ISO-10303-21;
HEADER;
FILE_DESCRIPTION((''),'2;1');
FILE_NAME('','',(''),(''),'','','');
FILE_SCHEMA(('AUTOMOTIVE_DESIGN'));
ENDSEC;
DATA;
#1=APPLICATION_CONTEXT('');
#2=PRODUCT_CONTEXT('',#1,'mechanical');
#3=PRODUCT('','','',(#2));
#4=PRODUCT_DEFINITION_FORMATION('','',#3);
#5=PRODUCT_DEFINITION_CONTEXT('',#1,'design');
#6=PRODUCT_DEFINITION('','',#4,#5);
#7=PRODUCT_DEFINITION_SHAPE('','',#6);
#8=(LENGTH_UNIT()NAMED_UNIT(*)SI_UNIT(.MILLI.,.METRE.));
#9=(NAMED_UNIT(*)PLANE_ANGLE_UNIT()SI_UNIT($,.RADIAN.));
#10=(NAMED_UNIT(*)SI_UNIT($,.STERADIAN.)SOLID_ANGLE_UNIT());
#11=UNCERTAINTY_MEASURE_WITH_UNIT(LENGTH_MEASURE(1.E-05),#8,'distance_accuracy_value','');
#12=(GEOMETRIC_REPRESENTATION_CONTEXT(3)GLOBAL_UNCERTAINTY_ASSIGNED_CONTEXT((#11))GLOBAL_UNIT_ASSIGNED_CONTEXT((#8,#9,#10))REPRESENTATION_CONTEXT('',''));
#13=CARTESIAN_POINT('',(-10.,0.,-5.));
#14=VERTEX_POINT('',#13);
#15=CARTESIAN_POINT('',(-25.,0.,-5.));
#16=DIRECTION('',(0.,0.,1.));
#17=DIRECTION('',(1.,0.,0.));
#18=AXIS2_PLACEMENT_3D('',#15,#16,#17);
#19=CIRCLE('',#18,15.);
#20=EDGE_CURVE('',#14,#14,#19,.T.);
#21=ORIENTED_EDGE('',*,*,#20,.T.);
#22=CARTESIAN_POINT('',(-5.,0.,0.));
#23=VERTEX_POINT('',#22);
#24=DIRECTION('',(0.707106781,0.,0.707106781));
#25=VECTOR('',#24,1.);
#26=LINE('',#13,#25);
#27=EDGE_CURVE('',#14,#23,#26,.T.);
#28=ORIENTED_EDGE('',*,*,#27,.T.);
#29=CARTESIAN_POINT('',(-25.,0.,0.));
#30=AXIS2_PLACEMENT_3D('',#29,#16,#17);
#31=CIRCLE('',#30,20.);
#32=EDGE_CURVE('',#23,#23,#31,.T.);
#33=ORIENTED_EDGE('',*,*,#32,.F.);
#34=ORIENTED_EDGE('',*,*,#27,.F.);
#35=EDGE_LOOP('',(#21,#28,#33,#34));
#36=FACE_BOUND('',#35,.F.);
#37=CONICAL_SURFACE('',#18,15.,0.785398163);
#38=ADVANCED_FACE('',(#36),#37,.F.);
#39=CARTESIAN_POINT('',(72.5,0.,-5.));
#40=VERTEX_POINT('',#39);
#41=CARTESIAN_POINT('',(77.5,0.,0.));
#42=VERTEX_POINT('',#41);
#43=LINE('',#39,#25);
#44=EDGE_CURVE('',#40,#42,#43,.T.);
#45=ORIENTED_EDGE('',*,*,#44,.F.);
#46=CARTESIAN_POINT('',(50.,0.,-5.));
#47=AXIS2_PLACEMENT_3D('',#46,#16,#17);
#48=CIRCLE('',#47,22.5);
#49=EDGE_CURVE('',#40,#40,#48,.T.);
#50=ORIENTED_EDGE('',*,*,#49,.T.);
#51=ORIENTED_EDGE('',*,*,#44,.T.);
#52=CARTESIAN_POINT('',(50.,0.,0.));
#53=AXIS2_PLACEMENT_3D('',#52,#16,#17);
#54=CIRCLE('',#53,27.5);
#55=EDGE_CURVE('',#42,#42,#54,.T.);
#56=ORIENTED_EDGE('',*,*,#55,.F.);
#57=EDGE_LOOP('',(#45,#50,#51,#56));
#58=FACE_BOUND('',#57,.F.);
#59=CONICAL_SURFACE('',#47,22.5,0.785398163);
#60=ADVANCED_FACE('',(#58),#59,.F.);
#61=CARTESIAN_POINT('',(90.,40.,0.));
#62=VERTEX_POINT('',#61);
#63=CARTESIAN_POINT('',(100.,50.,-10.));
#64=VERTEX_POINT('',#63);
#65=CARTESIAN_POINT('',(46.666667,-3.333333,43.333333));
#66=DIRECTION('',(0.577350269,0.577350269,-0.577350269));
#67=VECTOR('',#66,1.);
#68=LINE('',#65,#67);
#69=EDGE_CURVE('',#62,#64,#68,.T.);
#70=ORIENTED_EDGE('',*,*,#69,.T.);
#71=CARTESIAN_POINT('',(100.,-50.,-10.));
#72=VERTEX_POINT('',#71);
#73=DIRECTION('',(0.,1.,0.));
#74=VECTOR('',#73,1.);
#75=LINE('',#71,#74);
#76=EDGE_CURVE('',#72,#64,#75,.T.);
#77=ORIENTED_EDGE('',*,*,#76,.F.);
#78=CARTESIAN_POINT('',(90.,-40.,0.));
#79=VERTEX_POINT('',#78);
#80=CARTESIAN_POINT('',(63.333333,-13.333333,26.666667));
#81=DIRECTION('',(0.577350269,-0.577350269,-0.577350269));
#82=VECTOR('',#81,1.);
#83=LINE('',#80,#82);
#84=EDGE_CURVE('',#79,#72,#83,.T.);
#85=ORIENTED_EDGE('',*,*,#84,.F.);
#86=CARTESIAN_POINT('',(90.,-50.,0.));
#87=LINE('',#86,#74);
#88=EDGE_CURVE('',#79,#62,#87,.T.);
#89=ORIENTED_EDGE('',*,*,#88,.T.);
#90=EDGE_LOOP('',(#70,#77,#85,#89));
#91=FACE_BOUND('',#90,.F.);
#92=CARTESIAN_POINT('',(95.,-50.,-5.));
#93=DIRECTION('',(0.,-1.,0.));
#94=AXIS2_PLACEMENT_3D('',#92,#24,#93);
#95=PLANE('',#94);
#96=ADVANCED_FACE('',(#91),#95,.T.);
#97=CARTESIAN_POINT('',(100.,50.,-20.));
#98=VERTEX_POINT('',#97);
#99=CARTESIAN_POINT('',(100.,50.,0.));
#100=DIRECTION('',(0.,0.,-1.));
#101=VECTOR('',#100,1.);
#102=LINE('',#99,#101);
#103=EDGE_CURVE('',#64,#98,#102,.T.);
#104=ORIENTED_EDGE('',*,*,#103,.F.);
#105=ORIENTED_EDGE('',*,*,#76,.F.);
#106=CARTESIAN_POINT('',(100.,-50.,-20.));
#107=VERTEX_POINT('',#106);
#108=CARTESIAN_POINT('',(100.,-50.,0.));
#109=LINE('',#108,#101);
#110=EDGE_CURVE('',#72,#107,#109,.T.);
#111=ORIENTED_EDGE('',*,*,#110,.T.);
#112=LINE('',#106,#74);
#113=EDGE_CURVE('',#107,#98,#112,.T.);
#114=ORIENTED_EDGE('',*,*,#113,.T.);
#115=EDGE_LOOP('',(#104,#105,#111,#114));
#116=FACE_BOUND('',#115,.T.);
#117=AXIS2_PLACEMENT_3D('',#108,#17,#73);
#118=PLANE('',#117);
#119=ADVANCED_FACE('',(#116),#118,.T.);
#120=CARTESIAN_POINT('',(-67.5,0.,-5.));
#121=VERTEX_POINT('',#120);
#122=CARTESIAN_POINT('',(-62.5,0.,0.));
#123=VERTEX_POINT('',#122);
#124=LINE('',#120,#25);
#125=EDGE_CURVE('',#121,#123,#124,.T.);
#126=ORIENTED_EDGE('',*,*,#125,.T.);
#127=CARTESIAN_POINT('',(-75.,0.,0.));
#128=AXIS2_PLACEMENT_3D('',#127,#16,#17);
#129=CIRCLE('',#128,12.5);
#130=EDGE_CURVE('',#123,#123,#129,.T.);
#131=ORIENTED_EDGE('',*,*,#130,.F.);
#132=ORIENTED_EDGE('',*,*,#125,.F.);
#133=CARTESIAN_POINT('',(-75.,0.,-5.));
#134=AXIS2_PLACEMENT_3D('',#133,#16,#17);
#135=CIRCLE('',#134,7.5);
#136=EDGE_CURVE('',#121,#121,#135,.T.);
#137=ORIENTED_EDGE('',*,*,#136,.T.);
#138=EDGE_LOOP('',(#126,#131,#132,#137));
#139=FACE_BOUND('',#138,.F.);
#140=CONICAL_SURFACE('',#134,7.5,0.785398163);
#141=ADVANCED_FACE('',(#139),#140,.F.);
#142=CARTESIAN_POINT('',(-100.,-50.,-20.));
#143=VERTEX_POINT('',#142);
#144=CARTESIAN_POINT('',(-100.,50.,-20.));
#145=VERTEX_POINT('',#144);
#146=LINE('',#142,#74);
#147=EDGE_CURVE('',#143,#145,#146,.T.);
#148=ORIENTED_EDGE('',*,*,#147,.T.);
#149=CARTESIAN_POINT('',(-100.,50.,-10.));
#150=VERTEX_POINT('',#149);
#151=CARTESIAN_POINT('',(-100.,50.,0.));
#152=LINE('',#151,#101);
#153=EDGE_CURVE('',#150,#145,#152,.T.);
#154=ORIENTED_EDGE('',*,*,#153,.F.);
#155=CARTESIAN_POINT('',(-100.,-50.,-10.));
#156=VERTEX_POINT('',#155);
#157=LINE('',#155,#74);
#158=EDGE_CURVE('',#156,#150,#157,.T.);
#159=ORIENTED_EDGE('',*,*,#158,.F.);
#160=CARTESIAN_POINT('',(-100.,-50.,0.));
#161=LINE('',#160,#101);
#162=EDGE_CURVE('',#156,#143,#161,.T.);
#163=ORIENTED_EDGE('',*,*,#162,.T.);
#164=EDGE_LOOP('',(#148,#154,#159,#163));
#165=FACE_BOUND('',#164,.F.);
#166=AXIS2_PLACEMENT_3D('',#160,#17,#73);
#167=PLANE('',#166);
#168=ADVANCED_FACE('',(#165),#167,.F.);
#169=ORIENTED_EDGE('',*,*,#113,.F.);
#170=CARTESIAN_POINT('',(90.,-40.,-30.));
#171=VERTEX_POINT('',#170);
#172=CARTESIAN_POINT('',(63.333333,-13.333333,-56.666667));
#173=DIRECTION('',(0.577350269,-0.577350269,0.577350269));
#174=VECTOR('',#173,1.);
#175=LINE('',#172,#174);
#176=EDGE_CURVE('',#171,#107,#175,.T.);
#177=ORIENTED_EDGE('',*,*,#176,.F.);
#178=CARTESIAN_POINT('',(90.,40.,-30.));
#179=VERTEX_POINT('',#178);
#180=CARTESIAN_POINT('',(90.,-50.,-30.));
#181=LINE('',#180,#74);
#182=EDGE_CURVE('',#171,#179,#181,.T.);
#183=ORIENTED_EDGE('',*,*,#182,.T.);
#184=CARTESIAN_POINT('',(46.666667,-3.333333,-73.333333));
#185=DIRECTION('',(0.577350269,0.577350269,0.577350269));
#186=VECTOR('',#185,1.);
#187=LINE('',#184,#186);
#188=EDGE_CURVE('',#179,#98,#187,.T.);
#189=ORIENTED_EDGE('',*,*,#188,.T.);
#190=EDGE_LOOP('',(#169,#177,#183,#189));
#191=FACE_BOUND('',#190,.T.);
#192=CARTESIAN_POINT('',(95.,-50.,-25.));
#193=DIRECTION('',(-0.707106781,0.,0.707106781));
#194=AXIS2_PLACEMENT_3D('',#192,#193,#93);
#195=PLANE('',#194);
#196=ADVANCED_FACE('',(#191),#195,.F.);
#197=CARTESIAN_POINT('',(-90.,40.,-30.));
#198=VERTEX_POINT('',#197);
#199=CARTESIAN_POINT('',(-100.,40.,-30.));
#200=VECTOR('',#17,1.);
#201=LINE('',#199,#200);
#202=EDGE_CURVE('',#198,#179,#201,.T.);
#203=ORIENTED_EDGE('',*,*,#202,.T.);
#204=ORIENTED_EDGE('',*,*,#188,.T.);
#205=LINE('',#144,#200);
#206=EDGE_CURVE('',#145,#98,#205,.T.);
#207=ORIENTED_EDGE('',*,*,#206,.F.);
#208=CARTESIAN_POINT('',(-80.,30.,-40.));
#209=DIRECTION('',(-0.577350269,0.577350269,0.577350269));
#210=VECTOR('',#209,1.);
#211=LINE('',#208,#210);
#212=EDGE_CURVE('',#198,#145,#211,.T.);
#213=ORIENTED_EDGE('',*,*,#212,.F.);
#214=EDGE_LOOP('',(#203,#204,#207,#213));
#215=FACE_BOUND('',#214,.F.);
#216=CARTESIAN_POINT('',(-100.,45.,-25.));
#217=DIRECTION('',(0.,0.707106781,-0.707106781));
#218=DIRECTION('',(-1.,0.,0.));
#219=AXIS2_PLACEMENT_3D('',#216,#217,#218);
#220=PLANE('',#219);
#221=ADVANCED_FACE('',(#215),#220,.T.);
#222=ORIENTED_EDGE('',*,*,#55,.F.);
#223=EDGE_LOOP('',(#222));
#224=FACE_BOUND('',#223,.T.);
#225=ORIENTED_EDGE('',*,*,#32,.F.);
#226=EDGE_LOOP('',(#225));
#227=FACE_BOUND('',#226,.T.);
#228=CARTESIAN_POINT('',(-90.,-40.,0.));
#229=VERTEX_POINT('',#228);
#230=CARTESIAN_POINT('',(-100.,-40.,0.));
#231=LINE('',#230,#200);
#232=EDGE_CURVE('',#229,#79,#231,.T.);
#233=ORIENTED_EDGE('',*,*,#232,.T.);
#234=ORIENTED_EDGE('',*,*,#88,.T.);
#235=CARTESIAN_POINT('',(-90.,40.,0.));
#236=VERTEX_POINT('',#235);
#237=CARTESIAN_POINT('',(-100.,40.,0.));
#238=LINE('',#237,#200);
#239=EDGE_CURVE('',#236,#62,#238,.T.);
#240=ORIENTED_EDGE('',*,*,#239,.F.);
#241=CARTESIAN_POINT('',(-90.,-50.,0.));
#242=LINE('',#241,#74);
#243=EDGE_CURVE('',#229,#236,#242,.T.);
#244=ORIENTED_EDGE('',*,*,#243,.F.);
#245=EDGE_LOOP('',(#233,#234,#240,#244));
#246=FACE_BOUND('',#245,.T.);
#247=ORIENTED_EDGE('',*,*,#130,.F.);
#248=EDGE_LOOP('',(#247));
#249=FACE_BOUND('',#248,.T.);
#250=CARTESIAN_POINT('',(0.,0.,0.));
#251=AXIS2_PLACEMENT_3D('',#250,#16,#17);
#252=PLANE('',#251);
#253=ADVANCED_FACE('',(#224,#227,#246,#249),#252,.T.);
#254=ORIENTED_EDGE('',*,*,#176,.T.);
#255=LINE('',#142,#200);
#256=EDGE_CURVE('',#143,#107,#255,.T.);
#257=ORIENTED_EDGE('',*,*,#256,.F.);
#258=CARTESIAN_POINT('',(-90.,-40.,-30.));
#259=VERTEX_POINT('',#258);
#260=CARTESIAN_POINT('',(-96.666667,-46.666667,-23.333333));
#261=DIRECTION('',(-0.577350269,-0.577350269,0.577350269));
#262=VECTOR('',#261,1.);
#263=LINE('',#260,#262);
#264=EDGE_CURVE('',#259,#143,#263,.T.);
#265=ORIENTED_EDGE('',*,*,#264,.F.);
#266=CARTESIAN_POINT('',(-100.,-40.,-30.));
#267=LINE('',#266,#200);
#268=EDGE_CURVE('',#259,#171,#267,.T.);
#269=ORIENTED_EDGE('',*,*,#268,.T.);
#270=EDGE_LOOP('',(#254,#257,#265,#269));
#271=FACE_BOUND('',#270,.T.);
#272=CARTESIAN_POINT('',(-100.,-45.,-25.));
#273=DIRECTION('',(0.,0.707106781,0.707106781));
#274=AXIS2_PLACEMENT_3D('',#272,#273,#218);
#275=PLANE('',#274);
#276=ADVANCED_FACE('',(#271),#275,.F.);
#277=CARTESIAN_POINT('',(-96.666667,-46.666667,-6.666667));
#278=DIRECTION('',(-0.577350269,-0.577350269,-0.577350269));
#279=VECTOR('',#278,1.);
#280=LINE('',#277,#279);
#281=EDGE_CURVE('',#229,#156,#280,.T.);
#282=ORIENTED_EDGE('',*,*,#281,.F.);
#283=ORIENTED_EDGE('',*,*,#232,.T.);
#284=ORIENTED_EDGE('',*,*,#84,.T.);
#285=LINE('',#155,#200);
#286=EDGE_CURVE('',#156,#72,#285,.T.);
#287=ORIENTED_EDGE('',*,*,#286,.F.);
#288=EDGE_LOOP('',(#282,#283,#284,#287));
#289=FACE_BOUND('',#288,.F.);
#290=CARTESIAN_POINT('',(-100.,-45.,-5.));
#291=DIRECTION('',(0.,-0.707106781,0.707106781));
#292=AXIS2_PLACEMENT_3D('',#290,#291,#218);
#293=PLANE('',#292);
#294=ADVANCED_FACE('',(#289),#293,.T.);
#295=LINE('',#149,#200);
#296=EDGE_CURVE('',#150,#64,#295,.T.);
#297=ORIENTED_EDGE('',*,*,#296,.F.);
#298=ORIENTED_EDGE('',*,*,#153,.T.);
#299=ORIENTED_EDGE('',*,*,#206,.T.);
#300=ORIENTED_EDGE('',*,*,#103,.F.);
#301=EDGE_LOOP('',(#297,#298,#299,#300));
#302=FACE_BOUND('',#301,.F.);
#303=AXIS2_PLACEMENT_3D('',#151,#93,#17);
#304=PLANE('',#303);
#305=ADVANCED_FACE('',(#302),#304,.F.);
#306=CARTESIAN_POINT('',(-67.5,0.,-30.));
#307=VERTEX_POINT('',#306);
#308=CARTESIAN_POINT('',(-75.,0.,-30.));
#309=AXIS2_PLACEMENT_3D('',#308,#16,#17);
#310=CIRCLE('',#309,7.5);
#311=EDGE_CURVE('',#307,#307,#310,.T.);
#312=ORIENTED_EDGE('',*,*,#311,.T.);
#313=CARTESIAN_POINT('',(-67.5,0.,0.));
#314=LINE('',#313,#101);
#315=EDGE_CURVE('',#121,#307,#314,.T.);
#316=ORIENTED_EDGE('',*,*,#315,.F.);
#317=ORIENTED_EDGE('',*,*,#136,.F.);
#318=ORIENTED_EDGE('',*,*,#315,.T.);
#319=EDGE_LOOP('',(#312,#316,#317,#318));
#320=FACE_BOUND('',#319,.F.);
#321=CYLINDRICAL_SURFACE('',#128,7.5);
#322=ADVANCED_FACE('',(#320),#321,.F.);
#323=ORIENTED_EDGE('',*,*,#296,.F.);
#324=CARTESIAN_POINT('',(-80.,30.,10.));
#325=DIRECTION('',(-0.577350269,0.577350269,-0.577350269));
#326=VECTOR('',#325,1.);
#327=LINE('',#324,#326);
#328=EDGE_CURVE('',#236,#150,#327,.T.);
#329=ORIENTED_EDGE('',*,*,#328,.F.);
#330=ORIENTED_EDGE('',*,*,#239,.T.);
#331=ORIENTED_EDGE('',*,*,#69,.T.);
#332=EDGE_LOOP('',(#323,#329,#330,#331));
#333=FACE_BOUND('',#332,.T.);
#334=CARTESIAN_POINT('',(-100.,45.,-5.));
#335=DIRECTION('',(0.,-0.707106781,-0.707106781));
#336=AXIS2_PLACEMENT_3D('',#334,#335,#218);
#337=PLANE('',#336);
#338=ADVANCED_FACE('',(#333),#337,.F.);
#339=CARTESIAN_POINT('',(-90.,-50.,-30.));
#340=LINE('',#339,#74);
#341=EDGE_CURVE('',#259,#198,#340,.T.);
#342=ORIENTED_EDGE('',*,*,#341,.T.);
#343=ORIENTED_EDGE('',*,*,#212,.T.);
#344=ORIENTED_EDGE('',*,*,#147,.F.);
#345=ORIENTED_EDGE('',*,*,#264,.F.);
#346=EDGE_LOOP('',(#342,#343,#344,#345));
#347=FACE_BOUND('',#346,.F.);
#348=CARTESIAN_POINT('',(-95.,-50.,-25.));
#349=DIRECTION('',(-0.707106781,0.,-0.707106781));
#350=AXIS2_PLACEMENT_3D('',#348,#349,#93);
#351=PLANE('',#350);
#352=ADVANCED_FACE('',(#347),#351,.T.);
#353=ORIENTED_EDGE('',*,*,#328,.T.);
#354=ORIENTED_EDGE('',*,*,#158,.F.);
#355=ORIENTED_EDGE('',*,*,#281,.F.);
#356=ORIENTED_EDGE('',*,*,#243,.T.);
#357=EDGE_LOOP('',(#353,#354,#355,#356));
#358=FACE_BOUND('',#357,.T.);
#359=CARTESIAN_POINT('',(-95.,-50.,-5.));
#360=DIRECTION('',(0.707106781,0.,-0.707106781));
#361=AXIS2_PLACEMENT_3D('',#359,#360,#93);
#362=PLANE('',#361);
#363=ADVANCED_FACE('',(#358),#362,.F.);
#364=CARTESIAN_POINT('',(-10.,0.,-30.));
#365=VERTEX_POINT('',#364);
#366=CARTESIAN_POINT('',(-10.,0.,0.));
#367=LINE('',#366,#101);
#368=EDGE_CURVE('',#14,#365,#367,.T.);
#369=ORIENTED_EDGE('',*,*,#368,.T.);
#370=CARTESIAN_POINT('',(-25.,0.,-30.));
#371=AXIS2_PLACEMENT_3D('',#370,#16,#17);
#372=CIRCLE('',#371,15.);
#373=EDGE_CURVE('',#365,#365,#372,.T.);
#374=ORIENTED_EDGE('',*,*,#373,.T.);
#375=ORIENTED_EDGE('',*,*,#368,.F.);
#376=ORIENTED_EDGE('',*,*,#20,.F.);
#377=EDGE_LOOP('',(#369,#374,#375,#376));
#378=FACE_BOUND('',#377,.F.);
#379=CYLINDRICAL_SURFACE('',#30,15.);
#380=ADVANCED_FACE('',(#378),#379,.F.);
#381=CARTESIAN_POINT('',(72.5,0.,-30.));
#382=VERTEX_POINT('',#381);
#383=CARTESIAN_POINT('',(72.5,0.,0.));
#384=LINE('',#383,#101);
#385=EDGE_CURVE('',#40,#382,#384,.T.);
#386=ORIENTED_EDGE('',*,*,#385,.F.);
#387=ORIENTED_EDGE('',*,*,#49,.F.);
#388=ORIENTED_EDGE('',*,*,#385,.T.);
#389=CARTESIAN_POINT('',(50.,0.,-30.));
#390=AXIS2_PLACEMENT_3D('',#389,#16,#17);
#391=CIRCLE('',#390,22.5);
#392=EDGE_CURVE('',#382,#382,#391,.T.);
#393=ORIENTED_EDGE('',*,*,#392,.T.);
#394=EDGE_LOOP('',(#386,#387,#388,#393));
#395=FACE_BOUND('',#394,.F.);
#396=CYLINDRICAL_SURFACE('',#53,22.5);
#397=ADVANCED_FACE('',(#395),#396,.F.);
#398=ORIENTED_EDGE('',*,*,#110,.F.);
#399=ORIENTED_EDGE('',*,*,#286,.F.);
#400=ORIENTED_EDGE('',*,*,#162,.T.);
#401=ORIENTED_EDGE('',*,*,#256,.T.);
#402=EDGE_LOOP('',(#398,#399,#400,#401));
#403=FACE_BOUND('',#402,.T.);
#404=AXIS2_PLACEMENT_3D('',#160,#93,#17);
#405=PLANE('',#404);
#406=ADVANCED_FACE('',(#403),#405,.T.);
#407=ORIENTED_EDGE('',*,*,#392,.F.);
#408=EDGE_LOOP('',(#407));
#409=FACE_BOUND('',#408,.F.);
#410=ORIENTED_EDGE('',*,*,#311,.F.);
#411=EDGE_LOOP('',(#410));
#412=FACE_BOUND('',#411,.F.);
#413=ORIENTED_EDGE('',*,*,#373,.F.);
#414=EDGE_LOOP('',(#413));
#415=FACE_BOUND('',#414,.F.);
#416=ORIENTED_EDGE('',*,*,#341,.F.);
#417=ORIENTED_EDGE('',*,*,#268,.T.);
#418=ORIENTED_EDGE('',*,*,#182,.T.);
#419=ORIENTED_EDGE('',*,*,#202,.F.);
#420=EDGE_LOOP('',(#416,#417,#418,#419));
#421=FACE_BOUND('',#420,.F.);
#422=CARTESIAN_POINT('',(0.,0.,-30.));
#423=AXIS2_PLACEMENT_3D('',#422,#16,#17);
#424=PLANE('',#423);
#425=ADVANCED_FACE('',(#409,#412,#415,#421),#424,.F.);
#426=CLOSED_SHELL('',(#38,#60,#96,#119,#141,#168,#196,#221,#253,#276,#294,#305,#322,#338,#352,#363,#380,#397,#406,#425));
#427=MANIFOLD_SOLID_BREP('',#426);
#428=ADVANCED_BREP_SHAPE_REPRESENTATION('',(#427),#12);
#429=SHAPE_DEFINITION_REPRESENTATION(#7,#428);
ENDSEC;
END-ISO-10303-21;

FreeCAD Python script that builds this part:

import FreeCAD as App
import Part
import Sketcher

V = App.Vector


def edges_at(feature, points):
    """Names of the edges that pass closest to the given points."""
    edges = feature.Shape.Edges
    near = lambda p: min(range(len(edges)), key=lambda i: edges[i].distToShape(Part.Vertex(*p))[0])
    return sorted({f"Edge{near(p) + 1}" for p in points})


def add_polygon(sketch, points):
    """Adds a closed chain of lines whose ends are joined by coincident constraints."""
    first, n = sketch.GeometryCount, len(points)
    for a, b in zip(points, points[1:] + points[:1]):
        sketch.addGeometry(Part.LineSegment(App.Vector(*a, 0), App.Vector(*b, 0)), False)
    for i in range(n):
        sketch.addConstraint(Sketcher.Constraint("Coincident", first + i, 2, first + (i + 1) % n, 1))

doc = App.newDocument("Part")
params = doc.addObject("Spreadsheet::Sheet", "Params")
for row, (alias, value) in enumerate([
    ("sketch1_diameter", "15 mm"),
    ("sketch1_diameter2", "30 mm"),
    ("sketch1_diameter3", "45 mm"),
    ("sketch1_width", "200 mm"),
    ("sketch1_height", "100 mm"),
    ("pad1_length", "30 mm"),
    ("chamfer_size", "5 mm"),
    ("chamfer_size2", "5 mm"),
    ("chamfer2_size", "10 mm"),
    ("chamfer2_size2", "10 mm"),
], start=1):
    params.set(f"A{row}", alias)
    params.set(f"B{row}", "=" + value)
    params.setAlias(f"B{row}", alias)

body = doc.addObject("PartDesign::Body", "Body")

sketch1 = body.newObject("Sketcher::SketchObject", "Sketch")
sketch1.AttachmentSupport = (doc.getObject("XY_Plane"), [""])
sketch1.MapMode = "FlatFace"
add_polygon(sketch1, [(-100, 50), (-100, -50), (100, -50), (100, 50)])
sketch1.addGeometry(Part.Circle(V(-75, 0, 0), V(0, 0, 1), 8), False)
sketch1.addGeometry(Part.Circle(V(-25, 0, 0), V(0, 0, 1), 15), False)
sketch1.addGeometry(Part.Circle(V(50, 0, 0), V(0, 0, 1), 22), False)
sketch1.addConstraint([
    Sketcher.Constraint("Vertical", 0),
    Sketcher.Constraint("Horizontal", 1),
    Sketcher.Constraint("Vertical", 2),
    Sketcher.Constraint("Horizontal", 3),
    Sketcher.Constraint("Symmetric", 0, 2, 2, 2, -1, 1),
    Sketcher.Constraint("PointOnObject", 4, 3, -1),
    Sketcher.Constraint("PointOnObject", 5, 3, -1),
    Sketcher.Constraint("PointOnObject", 6, 3, -1),
    Sketcher.Constraint("Diameter", 4, 15.0),
    Sketcher.Constraint("Diameter", 5, 30.0),
    Sketcher.Constraint("Diameter", 6, 45.0),
    Sketcher.Constraint("DistanceX", 1, 1, 1, 2, 200.0),
    Sketcher.Constraint("DistanceY", 0, 2, 0, 1, 100.0),
    Sketcher.Constraint("DistanceX", 4, 3, -1, 1, 75.0),
    Sketcher.Constraint("DistanceX", 5, 3, -1, 1, 25.0),
    Sketcher.Constraint("DistanceX", -1, 1, 6, 3, 50.0),
])
sketch1.setExpression("Constraints[12]", "Params.sketch1_diameter")
sketch1.setExpression("Constraints[13]", "Params.sketch1_diameter2")
sketch1.setExpression("Constraints[14]", "Params.sketch1_diameter3")
sketch1.setExpression("Constraints[15]", "Params.sketch1_width")
sketch1.setExpression("Constraints[16]", "Params.sketch1_height")
pad1 = body.newObject("PartDesign::Pad", "Pad")
pad1.Profile = sketch1
pad1.setExpression("Length", "Params.pad1_length")
pad1.Reversed = True
doc.recompute()

chamfer = body.newObject("PartDesign::Chamfer", "Chamfer")
chamfer.Base = (pad1, edges_at(pad1, [(-82.5, 0, 0), (-40, 0, 0), (27.5, 0, 0)]))
chamfer.ChamferType = "Two distances"
chamfer.setExpression("Size", "Params.chamfer_size")
chamfer.setExpression("Size2", "Params.chamfer_size2")
doc.recompute()

chamfer2 = body.newObject("PartDesign::Chamfer", "Chamfer001")
chamfer2.Base = (chamfer, edges_at(chamfer, [
    (0, -50, 0),
    (100, 0, 0),
    (100, 0, -30),
    (0, -50, -30),
    (0, 50, 0),
    (0, 50, -30),
    (-100, 0, -30),
    (-100, 0, 0),
]))
chamfer2.ChamferType = "Two distances"
chamfer2.setExpression("Size", "Params.chamfer2_size")
chamfer2.setExpression("Size2", "Params.chamfer2_size2")

doc.recompute()
